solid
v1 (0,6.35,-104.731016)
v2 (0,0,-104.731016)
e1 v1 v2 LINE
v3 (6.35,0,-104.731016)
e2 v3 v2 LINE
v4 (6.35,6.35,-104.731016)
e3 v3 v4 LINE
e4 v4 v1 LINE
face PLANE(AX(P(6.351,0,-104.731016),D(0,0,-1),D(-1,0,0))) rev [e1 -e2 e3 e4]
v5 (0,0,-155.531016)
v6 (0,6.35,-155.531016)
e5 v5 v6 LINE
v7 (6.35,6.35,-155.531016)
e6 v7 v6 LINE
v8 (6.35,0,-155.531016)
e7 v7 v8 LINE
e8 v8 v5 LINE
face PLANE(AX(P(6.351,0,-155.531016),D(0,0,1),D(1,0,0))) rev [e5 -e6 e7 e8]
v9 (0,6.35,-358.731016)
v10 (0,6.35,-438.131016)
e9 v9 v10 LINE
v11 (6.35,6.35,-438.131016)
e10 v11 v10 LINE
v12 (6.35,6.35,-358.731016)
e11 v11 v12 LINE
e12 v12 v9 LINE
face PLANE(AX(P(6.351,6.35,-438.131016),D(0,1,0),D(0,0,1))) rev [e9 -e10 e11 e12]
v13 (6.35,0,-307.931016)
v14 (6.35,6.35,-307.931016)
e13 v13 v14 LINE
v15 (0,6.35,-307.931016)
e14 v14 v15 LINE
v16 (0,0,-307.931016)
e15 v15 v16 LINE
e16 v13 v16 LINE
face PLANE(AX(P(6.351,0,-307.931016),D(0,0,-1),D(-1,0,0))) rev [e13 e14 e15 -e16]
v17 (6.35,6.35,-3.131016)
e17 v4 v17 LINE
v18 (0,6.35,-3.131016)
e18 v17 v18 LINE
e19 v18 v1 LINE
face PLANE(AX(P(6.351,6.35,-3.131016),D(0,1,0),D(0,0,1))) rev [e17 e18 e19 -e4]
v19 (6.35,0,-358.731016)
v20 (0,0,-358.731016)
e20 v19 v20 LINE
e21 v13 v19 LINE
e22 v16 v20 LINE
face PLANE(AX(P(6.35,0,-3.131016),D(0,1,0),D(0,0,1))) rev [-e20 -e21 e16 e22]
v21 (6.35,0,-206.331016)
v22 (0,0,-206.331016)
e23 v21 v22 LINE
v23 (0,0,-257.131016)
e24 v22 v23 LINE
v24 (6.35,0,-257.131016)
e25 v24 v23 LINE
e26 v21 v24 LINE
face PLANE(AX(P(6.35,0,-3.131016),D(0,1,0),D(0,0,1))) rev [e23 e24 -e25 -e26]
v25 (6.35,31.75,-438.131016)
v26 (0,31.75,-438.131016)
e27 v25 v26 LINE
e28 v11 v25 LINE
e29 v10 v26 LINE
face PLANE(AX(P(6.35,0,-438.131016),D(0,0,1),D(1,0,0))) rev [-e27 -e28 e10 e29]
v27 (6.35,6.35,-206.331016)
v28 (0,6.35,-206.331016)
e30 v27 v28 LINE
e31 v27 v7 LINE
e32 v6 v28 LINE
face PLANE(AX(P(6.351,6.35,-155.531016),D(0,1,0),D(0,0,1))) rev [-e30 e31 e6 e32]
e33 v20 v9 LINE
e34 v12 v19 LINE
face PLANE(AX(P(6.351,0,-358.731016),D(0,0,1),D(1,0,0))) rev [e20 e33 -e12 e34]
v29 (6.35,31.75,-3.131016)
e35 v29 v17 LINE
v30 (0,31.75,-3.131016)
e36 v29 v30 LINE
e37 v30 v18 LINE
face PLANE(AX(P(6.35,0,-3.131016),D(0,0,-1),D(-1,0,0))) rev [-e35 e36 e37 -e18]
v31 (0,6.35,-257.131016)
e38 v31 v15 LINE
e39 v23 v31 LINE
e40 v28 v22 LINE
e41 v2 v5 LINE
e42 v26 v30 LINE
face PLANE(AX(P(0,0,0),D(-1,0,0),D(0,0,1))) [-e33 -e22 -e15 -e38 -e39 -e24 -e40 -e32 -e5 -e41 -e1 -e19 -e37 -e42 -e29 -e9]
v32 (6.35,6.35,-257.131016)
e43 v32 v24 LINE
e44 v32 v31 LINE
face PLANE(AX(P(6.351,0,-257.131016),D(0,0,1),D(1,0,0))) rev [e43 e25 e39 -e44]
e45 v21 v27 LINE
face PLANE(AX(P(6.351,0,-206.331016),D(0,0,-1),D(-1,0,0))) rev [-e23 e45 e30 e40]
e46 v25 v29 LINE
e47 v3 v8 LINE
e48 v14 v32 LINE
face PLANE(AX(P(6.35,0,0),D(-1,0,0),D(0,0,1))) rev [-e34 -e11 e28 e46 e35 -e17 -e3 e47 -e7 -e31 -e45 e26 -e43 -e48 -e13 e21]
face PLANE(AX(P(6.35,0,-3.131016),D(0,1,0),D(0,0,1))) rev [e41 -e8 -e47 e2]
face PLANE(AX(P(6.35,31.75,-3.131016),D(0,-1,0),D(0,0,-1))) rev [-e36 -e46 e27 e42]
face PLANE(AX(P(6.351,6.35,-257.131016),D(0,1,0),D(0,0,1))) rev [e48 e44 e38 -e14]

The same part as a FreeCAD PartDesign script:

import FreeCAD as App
import Part
import Sketcher
Q = App.Units.Quantity

doc = App.newDocument("Part")
params = doc.addObject("Spreadsheet::Sheet", "Params")
for row, (alias, value) in enumerate([
    ("sketch1_width", "1.25 in"),
    ("pad1_length", "0.25 in"),
    ("sketch2_height", "4 in"),
    ("sketch2_width", "0.25 in"),
    ("sketch3_height", "2 in"),
    ("sketch3_width", "0.25 in"),
    ("sketch4_height", "2 in"),
    ("sketch4_width", "0.25 in"),
    ("sketch5_width", "0.25 in"),
], start=1):
    params.set(f"A{row}", alias)
    params.set(f"B{row}", "=" + value)
    params.setAlias(f"B{row}", alias)

body = doc.addObject("PartDesign::Body", "Body")

sketch1 = body.newObject("Sketcher::SketchObject", "Sketch")
sketch1.AttachmentSupport = (doc.getObject("YZ_Plane"), [""])
sketch1.MapMode = "FlatFace"
sketch1.addGeometry([
    Part.LineSegment(App.Vector(32, -3, 0), App.Vector(0, -3, 0)),
    Part.LineSegment(App.Vector(0, -3, 0), App.Vector(0, -438, 0)),
    Part.LineSegment(App.Vector(0, -438, 0), App.Vector(32, -438, 0)),
    Part.LineSegment(App.Vector(32, -438, 0), App.Vector(32, -3, 0)),
], False)
sketch1.addConstraint([
    Sketcher.Constraint("Coincident", 0, 2, 1, 1),
    Sketcher.Constraint("Coincident", 1, 2, 2, 1),
    Sketcher.Constraint("Coincident", 2, 2, 3, 1),
    Sketcher.Constraint("Coincident", 3, 2, 0, 1),
    Sketcher.Constraint("Horizontal", 0),
    Sketcher.Constraint("Vertical", 1),
    Sketcher.Constraint("Horizontal", 2),
    Sketcher.Constraint("Vertical", 3),
    Sketcher.Constraint("PointOnObject", 0, 2, -2),
    Sketcher.Constraint("DistanceX", 0, 2, 0, 1, Q("1.25 in")),
    Sketcher.Constraint("DistanceY", 1, 2, 1, 1, Q("435 mm")),
    Sketcher.Constraint("DistanceY", 0, 2, -1, 1, Q("3.131016 mm")),
])
sketch1.setExpression("Constraints[9]", "Params.sketch1_width")
pad1 = body.newObject("PartDesign::Pad", "Pad")
pad1.Profile = sketch1
pad1.setExpression("Length", "Params.pad1_length")

sketch2 = body.newObject("Sketcher::SketchObject", "Sketch001")
sketch2.AttachmentSupport = (doc.getObject("YZ_Plane"), [""])
sketch2.MapMode = "FlatFace"
sketch2.addGeometry([
    Part.LineSegment(App.Vector(6, -105, 0), App.Vector(0, -105, 0)),
    Part.LineSegment(App.Vector(0, -105, 0), App.Vector(0, -3, 0)),
    Part.LineSegment(App.Vector(0, -3, 0), App.Vector(6, -3, 0)),
    Part.LineSegment(App.Vector(6, -3, 0), App.Vector(6, -105, 0)),
], False)
sketch2.addConstraint([
    Sketcher.Constraint("Coincident", 0, 2, 1, 1),
    Sketcher.Constraint("Coincident", 1, 2, 2, 1),
    Sketcher.Constraint("Coincident", 2, 2, 3, 1),
    Sketcher.Constraint("Coincident", 3, 2, 0, 1),
    Sketcher.Constraint("Horizontal", 0),
    Sketcher.Constraint("Vertical", 1),
    Sketcher.Constraint("Horizontal", 2),
    Sketcher.Constraint("Vertical", 3),
    Sketcher.Constraint("PointOnObject", 0, 2, -2),
    Sketcher.Constraint("DistanceY", 1, 1, 1, 2, Q("4 in")),
    Sketcher.Constraint("DistanceX", 0, 2, 0, 1, Q("0.25 in")),
    Sketcher.Constraint("DistanceY", 0, 2, -1, 1, Q("104.731016 mm")),
])
sketch2.setExpression("Constraints[9]", "Params.sketch2_height")
sketch2.setExpression("Constraints[10]", "Params.sketch2_width")
pocket1 = body.newObject("PartDesign::Pocket", "Pocket")
pocket1.Profile = sketch2
pocket1.Type = "UpToFirst"
pocket1.Reversed = True

sketch3 = body.newObject("Sketcher::SketchObject", "Sketch002")
sketch3.AttachmentSupport = (doc.getObject("YZ_Plane"), [""])
sketch3.MapMode = "FlatFace"
sketch3.addGeometry([
    Part.LineSegment(App.Vector(6, -206, 0), App.Vector(0, -206, 0)),
    Part.LineSegment(App.Vector(0, -206, 0), App.Vector(0, -156, 0)),
    Part.LineSegment(App.Vector(0, -156, 0), App.Vector(6, -156, 0)),
    Part.LineSegment(App.Vector(6, -156, 0), App.Vector(6, -206, 0)),
], False)
sketch3.addConstraint([
    Sketcher.Constraint("Coincident", 0, 2, 1, 1),
    Sketcher.Constraint("Coincident", 1, 2, 2, 1),
    Sketcher.Constraint("Coincident", 2, 2, 3, 1),
    Sketcher.Constraint("Coincident", 3, 2, 0, 1),
    Sketcher.Constraint("Horizontal", 0),
    Sketcher.Constraint("Vertical", 1),
    Sketcher.Constraint("Horizontal", 2),
    Sketcher.Constraint("Vertical", 3),
    Sketcher.Constraint("PointOnObject", 0, 2, -2),
    Sketcher.Constraint("DistanceY", 1, 1, 1, 2, Q("2 in")),
    Sketcher.Constraint("DistanceX", 0, 2, 0, 1, Q("0.25 in")),
    Sketcher.Constraint("DistanceY", 0, 2, -1, 1, Q("206.331016 mm")),
])
sketch3.setExpression("Constraints[9]", "Params.sketch3_height")
sketch3.setExpression("Constraints[10]", "Params.sketch3_width")
pocket2 = body.newObject("PartDesign::Pocket", "Pocket001")
pocket2.Profile = sketch3
pocket2.Type = "UpToFirst"
pocket2.Reversed = True

sketch4 = body.newObject("Sketcher::SketchObject", "Sketch003")
sketch4.AttachmentSupport = (doc.getObject("YZ_Plane"), [""])
sketch4.MapMode = "FlatFace"
sketch4.addGeometry([
    Part.LineSegment(App.Vector(6, -308, 0), App.Vector(0, -308, 0)),
    Part.LineSegment(App.Vector(0, -308, 0), App.Vector(0, -257, 0)),
    Part.LineSegment(App.Vector(0, -257, 0), App.Vector(6, -257, 0)),
    Part.LineSegment(App.Vector(6, -257, 0), App.Vector(6, -308, 0)),
], False)
sketch4.addConstraint([
    Sketcher.Constraint("Coincident", 0, 2, 1, 1),
    Sketcher.Constraint("Coincident", 1, 2, 2, 1),
    Sketcher.Constraint("Coincident", 2, 2, 3, 1),
    Sketcher.Constraint("Coincident", 3, 2, 0, 1),
    Sketcher.Constraint("Horizontal", 0),
    Sketcher.Constraint("Vertical", 1),
    Sketcher.Constraint("Horizontal", 2),
    Sketcher.Constraint("Vertical", 3),
    Sketcher.Constraint("PointOnObject", 0, 2, -2),
    Sketcher.Constraint("DistanceY", 1, 1, 1, 2, Q("2 in")),
    Sketcher.Constraint("DistanceX", 0, 2, 0, 1, Q("0.25 in")),
    Sketcher.Constraint("DistanceY", 0, 2, -1, 1, Q("307.931016 mm")),
])
sketch4.setExpression("Constraints[9]", "Params.sketch4_height")
sketch4.setExpression("Constraints[10]", "Params.sketch4_width")
pocket3 = body.newObject("PartDesign::Pocket", "Pocket002")
pocket3.Profile = sketch4
pocket3.Type = "UpToFirst"
pocket3.Reversed = True

sketch5 = body.newObject("Sketcher::SketchObject", "Sketch004")
sketch5.AttachmentSupport = (doc.getObject("YZ_Plane"), [""])
sketch5.MapMode = "FlatFace"
sketch5.addGeometry([
    Part.LineSegment(App.Vector(6, -438, 0), App.Vector(0, -438, 0)),
    Part.LineSegment(App.Vector(0, -438, 0), App.Vector(0, -359, 0)),
    Part.LineSegment(App.Vector(0, -359, 0), App.Vector(6, -359, 0)),
    Part.LineSegment(App.Vector(6, -359, 0), App.Vector(6, -438, 0)),
], False)
sketch5.addConstraint([
    Sketcher.Constraint("Coincident", 0, 2, 1, 1),
    Sketcher.Constraint("Coincident", 1, 2, 2, 1),
    Sketcher.Constraint("Coincident", 2, 2, 3, 1),
    Sketcher.Constraint("Coincident", 3, 2, 0, 1),
    Sketcher.Constraint("Horizontal", 0),
    Sketcher.Constraint("Vertical", 1),
    Sketcher.Constraint("Horizontal", 2),
    Sketcher.Constraint("Vertical", 3),
    Sketcher.Constraint("PointOnObject", 0, 2, -2),
    Sketcher.Constraint("DistanceX", 0, 2, 0, 1, Q("0.25 in")),
    Sketcher.Constraint("DistanceY", 1, 1, 1, 2, Q("79.4 mm")),
    Sketcher.Constraint("DistanceY", 0, 2, -1, 1, Q("438.131016 mm")),
])
sketch5.setExpression("Constraints[9]", "Params.sketch5_width")
pocket4 = body.newObject("PartDesign::Pocket", "Pocket003")
pocket4.Profile = sketch5
pocket4.Type = "UpToFirst"
pocket4.Reversed = True

doc.recompute()
